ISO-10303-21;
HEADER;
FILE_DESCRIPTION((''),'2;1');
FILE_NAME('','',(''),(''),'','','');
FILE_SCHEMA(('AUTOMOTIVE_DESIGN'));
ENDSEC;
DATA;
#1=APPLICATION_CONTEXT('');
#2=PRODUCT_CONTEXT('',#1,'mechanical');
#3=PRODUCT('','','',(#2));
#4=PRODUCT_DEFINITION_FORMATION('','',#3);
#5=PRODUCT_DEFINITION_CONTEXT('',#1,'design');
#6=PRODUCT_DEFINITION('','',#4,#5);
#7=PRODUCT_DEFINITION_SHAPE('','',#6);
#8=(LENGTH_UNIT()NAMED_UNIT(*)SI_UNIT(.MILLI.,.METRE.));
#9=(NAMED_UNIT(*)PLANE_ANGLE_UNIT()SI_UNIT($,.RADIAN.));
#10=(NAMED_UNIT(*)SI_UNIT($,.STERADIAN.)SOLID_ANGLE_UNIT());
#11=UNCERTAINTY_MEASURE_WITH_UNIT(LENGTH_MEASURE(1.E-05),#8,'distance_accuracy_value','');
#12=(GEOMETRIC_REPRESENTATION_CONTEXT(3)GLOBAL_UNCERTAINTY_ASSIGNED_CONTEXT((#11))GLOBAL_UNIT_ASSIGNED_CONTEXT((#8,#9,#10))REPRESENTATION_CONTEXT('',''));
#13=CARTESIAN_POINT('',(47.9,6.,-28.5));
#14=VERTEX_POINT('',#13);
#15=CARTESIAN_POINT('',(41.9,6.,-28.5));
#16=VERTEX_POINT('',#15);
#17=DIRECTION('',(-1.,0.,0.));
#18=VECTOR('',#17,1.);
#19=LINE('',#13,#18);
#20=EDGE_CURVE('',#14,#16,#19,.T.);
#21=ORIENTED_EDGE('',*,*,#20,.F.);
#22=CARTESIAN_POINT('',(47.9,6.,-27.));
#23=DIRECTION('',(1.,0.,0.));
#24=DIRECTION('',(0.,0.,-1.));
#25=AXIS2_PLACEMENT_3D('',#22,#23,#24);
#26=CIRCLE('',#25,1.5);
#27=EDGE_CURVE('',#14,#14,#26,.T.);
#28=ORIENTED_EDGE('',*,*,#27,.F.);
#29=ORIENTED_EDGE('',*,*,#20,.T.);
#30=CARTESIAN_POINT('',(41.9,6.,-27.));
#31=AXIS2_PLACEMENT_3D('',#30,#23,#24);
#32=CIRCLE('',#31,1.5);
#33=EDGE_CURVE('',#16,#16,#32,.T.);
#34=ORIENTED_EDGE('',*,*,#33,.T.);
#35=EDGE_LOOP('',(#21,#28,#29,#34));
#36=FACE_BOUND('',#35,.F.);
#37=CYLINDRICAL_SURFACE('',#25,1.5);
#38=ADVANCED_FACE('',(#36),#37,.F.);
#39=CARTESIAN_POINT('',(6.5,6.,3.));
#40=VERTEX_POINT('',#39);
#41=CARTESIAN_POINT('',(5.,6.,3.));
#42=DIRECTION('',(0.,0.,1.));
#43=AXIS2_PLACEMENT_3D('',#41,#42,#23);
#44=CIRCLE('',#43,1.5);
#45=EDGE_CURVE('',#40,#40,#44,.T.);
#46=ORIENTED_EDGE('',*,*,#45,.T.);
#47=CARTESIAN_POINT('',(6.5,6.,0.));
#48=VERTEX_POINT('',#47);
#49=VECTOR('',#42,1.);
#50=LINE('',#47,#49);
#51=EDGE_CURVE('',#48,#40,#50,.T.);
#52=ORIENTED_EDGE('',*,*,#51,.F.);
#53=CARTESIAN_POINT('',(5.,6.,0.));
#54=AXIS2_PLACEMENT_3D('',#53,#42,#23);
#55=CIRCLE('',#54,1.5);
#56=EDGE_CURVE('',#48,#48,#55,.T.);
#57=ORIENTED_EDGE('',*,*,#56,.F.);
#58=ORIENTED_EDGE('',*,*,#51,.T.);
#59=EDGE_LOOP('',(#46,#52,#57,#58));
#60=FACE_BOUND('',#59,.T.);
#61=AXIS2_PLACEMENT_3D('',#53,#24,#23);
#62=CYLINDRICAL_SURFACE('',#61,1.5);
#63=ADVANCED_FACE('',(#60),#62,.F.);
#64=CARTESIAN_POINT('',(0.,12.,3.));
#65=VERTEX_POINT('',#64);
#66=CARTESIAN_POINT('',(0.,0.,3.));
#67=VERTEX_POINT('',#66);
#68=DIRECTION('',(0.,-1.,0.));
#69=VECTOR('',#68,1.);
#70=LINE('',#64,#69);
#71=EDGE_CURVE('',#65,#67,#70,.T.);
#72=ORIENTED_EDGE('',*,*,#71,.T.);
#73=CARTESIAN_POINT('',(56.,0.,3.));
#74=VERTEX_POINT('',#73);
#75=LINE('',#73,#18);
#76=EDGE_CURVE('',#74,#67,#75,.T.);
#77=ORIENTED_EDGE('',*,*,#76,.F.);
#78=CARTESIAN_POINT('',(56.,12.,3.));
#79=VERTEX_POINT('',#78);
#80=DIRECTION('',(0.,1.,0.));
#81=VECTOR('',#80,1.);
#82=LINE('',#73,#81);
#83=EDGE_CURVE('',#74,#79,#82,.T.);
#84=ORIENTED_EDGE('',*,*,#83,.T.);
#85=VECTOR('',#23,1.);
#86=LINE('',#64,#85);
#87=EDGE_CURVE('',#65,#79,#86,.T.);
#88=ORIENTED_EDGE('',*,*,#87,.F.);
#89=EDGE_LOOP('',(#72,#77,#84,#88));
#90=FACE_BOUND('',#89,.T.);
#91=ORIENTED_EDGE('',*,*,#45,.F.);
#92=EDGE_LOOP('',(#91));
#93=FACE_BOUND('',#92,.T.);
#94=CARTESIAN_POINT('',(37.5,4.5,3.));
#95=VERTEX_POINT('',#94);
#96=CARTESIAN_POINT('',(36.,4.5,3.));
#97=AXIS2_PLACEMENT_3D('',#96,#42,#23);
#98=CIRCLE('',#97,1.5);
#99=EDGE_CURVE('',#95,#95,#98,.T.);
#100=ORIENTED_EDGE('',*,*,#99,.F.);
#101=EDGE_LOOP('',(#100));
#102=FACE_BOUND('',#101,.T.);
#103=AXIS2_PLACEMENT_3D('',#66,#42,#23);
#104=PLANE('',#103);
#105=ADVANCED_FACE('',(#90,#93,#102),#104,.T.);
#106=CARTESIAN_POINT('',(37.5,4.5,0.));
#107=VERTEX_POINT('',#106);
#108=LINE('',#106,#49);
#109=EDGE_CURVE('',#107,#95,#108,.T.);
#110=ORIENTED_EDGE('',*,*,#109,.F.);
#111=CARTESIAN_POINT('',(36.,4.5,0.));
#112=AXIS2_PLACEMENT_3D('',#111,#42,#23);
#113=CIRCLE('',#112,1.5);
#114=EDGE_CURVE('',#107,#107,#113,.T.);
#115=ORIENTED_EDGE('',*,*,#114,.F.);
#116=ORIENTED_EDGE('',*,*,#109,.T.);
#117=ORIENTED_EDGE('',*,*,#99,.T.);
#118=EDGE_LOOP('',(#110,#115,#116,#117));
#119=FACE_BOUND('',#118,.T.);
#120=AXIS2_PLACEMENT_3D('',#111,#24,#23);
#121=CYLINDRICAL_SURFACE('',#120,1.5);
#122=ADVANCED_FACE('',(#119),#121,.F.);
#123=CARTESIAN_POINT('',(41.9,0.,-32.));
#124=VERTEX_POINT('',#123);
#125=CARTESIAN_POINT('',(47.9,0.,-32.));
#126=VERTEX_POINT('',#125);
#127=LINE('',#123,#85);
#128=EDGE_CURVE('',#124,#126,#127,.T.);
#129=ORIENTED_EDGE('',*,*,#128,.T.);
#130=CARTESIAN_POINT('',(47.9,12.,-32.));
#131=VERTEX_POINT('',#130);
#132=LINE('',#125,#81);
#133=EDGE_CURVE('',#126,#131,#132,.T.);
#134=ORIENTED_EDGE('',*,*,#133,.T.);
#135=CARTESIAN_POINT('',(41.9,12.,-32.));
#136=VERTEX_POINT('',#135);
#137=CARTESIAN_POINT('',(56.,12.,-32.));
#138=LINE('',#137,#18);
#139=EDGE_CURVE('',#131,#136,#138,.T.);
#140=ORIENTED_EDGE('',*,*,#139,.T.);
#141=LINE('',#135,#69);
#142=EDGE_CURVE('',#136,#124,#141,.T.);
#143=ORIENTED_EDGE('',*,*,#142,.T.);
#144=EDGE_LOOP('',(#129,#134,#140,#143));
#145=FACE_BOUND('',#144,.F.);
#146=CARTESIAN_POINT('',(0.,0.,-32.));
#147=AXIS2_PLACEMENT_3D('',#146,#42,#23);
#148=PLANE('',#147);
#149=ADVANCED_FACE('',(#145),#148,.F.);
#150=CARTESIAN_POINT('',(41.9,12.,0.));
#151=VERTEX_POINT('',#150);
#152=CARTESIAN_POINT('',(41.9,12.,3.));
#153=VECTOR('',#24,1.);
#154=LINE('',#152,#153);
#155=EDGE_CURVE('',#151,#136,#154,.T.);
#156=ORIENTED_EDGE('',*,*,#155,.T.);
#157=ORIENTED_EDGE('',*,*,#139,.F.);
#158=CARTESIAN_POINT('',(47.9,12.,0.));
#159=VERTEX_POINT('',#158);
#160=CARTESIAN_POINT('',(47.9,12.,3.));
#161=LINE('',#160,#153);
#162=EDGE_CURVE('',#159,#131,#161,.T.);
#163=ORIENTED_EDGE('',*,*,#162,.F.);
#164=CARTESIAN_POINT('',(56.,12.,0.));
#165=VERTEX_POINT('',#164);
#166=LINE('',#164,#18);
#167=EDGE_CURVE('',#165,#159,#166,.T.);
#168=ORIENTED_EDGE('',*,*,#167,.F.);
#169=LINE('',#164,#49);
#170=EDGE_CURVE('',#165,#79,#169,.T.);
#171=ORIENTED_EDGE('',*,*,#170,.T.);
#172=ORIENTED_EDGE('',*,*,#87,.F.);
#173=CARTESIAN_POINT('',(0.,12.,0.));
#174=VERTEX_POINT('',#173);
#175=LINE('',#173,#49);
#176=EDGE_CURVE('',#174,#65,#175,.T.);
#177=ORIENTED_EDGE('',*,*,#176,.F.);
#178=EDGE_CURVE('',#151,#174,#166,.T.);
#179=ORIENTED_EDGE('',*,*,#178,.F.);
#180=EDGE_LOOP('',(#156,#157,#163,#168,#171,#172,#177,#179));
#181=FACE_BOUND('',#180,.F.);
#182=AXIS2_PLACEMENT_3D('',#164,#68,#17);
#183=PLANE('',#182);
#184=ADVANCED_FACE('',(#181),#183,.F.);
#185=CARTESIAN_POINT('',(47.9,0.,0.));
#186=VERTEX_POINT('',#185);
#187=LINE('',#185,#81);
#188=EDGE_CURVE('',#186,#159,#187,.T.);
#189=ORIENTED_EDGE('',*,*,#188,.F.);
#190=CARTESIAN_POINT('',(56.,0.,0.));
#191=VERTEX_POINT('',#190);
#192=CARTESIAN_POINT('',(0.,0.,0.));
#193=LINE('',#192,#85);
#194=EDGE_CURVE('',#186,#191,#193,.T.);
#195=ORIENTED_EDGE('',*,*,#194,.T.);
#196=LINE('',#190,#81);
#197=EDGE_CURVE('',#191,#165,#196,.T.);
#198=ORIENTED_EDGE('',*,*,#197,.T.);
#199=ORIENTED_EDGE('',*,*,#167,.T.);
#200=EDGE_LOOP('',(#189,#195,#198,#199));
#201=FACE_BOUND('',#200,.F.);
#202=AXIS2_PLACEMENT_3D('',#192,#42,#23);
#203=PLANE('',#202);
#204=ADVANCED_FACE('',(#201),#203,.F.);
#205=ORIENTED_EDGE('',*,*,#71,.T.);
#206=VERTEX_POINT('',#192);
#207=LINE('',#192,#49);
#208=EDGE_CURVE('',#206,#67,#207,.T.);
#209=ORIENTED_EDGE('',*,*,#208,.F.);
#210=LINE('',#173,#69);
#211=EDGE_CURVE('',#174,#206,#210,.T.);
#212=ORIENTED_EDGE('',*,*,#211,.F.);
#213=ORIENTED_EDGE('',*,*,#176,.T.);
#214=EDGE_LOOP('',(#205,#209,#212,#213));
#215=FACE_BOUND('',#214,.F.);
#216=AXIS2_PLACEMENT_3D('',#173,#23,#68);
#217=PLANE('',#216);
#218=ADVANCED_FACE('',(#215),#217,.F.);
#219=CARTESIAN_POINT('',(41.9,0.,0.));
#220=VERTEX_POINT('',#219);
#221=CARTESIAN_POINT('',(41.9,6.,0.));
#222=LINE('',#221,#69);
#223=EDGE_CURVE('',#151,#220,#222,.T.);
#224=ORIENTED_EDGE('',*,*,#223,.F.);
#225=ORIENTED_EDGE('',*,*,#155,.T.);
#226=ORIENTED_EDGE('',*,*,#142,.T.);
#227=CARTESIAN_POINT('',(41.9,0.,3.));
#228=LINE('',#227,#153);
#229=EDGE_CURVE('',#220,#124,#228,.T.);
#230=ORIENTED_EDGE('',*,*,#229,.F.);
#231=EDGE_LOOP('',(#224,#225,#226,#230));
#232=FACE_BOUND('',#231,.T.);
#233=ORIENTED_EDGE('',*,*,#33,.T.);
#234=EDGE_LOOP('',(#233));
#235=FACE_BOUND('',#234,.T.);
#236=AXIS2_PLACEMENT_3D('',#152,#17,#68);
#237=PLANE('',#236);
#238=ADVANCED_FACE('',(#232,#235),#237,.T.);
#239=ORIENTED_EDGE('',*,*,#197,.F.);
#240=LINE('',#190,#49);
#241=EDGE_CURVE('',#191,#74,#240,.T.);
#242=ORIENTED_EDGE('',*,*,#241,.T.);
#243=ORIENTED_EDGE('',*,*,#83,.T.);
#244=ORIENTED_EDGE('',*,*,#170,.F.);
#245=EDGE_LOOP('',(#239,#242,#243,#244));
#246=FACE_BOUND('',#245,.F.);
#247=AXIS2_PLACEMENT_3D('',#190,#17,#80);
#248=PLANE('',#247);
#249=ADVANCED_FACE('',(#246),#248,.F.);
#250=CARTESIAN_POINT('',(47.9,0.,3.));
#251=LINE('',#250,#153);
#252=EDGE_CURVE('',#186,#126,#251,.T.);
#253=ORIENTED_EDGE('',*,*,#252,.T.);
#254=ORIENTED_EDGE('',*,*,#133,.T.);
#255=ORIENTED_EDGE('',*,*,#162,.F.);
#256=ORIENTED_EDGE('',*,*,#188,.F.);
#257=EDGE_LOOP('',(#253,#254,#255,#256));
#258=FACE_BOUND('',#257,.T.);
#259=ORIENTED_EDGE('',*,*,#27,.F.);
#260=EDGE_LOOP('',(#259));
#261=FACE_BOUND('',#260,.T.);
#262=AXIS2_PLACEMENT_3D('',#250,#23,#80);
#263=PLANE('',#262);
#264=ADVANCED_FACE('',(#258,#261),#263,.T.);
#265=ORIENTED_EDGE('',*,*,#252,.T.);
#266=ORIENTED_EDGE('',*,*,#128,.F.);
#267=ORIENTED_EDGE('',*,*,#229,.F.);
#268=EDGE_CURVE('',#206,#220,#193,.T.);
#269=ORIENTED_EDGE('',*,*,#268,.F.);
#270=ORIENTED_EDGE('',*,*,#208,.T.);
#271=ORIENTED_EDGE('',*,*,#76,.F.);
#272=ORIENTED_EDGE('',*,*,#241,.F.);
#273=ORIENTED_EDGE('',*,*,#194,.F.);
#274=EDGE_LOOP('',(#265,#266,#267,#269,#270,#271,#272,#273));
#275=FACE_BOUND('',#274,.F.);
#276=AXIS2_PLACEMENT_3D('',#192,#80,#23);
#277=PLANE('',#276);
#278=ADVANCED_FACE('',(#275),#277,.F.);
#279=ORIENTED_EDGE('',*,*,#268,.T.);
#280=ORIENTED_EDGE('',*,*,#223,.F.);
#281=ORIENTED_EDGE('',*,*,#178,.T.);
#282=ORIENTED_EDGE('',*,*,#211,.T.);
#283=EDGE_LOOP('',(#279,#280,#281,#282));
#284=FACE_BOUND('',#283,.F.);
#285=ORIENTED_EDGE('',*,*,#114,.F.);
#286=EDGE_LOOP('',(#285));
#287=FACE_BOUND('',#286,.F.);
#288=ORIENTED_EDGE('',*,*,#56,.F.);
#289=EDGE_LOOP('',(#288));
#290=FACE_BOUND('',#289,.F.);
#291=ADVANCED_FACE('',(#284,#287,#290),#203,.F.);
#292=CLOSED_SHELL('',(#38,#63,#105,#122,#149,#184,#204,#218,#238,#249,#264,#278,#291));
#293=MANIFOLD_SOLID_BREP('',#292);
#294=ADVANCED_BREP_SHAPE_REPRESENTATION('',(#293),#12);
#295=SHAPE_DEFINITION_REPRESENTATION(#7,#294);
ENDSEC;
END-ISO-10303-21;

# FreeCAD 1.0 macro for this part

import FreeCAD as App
import Part
import Sketcher


def add_polygon(sketch, points):
    """Adds a closed chain of lines whose ends are joined by coincident constraints."""
    first, n = sketch.GeometryCount, len(points)
    for a, b in zip(points, points[1:] + points[:1]):
        sketch.addGeometry(Part.LineSegment(App.Vector(*a, 0), App.Vector(*b, 0)), False)
    for i in range(n):
        sketch.addConstraint(Sketcher.Constraint("Coincident", first + i, 2, first + (i + 1) % n, 1))

doc = App.newDocument("Part")
body = doc.addObject("PartDesign::Body", "Body")

sketch1 = body.newObject("Sketcher::SketchObject", "Sketch")
sketch1.AttachmentSupport = (doc.getObject("XY_Plane"), [""])
sketch1.MapMode = "FlatFace"
add_polygon(sketch1, [(0, 12), (0, 0), (56, 0), (56, 12)])
sketch1.addGeometry(Part.Circle(App.Vector(36, 4.5, 0), App.Vector(0, 0, 1), 1.5), False)
sketch1.addGeometry(Part.Circle(App.Vector(5, 6, 0), App.Vector(0, 0, 1), 1.5), False)
sketch1.addConstraint([
    Sketcher.Constraint("Vertical", 0),
    Sketcher.Constraint("Horizontal", 1),
    Sketcher.Constraint("Vertical", 2),
    Sketcher.Constraint("Horizontal", 3),
    Sketcher.Constraint("Coincident", 0, 2, -1, 1),
    Sketcher.Constraint("Equal", 4, 5),
    Sketcher.Constraint("Diameter", 4, 3.0),
    Sketcher.Constraint("DistanceX", 1, 1, 1, 2, 56.0),
    Sketcher.Constraint("DistanceY", 0, 2, 0, 1, 12.0),
    Sketcher.Constraint("DistanceX", -1, 1, 5, 3, 5.0),
    Sketcher.Constraint("DistanceX", 4, 3, 1, 2, 20.0),
    Sketcher.Constraint("DistanceY", -1, 1, 4, 3, 4.5),
    Sketcher.Constraint("DistanceY", -1, 1, 5, 3, 6.0),
])
pad1 = body.newObject("PartDesign::Pad", "Pad")
pad1.Profile = sketch1
pad1.Length = 3

sketch2 = body.newObject("Sketcher::SketchObject", "Sketch001")
sketch2.AttachmentSupport = (doc.getObject("XY_Plane"), [""])
sketch2.MapMode = "FlatFace"
sketch2.AttachmentOffset = App.Placement(App.Vector(0, 0, 3), App.Rotation())
add_polygon(sketch2, [(47.9, 0), (47.9, 12), (41.9, 12), (41.9, 0)])
sketch2.addConstraint([
    Sketcher.Constraint("Vertical", 0),
    Sketcher.Constraint("Horizontal", 1),
    Sketcher.Constraint("Vertical", 2),
    Sketcher.Constraint("Horizontal", 3),
    Sketcher.Constraint("PointOnObject", 2, 2, -1),
    Sketcher.Constraint("DistanceX", 1, 2, 1, 1, 6.0),
    Sketcher.Constraint("DistanceY", 0, 1, 0, 2, 12.0),
    Sketcher.Constraint("DistanceX", -1, 1, 0, 2, 47.9),
])
pad2 = body.newObject("PartDesign::Pad", "Pad001")
pad2.Profile = sketch2
pad2.Length = 35
pad2.Reversed = True

sketch3 = body.newObject("Sketcher::SketchObject", "Sketch002")
sketch3.AttachmentSupport = (doc.getObject("YZ_Plane"), [""])
sketch3.MapMode = "FlatFace"
sketch3.AttachmentOffset = App.Placement(App.Vector(0, 0, 47.9), App.Rotation())
sketch3.addGeometry(Part.Circle(App.Vector(6, -27, 0), App.Vector(0, 0, 1), 1.5), False)
sketch3.addConstraint([
    Sketcher.Constraint("Diameter", 0, 3.0),
    Sketcher.Constraint("DistanceX", -1, 1, 0, 3, 6.0),
    Sketcher.Constraint("DistanceY", 0, 3, -1, 1, 27.0),
])
pocket1 = body.newObject("PartDesign::Pocket", "Pocket")
pocket1.Profile = sketch3
pocket1.Type = "ThroughAll"

doc.recompute()
